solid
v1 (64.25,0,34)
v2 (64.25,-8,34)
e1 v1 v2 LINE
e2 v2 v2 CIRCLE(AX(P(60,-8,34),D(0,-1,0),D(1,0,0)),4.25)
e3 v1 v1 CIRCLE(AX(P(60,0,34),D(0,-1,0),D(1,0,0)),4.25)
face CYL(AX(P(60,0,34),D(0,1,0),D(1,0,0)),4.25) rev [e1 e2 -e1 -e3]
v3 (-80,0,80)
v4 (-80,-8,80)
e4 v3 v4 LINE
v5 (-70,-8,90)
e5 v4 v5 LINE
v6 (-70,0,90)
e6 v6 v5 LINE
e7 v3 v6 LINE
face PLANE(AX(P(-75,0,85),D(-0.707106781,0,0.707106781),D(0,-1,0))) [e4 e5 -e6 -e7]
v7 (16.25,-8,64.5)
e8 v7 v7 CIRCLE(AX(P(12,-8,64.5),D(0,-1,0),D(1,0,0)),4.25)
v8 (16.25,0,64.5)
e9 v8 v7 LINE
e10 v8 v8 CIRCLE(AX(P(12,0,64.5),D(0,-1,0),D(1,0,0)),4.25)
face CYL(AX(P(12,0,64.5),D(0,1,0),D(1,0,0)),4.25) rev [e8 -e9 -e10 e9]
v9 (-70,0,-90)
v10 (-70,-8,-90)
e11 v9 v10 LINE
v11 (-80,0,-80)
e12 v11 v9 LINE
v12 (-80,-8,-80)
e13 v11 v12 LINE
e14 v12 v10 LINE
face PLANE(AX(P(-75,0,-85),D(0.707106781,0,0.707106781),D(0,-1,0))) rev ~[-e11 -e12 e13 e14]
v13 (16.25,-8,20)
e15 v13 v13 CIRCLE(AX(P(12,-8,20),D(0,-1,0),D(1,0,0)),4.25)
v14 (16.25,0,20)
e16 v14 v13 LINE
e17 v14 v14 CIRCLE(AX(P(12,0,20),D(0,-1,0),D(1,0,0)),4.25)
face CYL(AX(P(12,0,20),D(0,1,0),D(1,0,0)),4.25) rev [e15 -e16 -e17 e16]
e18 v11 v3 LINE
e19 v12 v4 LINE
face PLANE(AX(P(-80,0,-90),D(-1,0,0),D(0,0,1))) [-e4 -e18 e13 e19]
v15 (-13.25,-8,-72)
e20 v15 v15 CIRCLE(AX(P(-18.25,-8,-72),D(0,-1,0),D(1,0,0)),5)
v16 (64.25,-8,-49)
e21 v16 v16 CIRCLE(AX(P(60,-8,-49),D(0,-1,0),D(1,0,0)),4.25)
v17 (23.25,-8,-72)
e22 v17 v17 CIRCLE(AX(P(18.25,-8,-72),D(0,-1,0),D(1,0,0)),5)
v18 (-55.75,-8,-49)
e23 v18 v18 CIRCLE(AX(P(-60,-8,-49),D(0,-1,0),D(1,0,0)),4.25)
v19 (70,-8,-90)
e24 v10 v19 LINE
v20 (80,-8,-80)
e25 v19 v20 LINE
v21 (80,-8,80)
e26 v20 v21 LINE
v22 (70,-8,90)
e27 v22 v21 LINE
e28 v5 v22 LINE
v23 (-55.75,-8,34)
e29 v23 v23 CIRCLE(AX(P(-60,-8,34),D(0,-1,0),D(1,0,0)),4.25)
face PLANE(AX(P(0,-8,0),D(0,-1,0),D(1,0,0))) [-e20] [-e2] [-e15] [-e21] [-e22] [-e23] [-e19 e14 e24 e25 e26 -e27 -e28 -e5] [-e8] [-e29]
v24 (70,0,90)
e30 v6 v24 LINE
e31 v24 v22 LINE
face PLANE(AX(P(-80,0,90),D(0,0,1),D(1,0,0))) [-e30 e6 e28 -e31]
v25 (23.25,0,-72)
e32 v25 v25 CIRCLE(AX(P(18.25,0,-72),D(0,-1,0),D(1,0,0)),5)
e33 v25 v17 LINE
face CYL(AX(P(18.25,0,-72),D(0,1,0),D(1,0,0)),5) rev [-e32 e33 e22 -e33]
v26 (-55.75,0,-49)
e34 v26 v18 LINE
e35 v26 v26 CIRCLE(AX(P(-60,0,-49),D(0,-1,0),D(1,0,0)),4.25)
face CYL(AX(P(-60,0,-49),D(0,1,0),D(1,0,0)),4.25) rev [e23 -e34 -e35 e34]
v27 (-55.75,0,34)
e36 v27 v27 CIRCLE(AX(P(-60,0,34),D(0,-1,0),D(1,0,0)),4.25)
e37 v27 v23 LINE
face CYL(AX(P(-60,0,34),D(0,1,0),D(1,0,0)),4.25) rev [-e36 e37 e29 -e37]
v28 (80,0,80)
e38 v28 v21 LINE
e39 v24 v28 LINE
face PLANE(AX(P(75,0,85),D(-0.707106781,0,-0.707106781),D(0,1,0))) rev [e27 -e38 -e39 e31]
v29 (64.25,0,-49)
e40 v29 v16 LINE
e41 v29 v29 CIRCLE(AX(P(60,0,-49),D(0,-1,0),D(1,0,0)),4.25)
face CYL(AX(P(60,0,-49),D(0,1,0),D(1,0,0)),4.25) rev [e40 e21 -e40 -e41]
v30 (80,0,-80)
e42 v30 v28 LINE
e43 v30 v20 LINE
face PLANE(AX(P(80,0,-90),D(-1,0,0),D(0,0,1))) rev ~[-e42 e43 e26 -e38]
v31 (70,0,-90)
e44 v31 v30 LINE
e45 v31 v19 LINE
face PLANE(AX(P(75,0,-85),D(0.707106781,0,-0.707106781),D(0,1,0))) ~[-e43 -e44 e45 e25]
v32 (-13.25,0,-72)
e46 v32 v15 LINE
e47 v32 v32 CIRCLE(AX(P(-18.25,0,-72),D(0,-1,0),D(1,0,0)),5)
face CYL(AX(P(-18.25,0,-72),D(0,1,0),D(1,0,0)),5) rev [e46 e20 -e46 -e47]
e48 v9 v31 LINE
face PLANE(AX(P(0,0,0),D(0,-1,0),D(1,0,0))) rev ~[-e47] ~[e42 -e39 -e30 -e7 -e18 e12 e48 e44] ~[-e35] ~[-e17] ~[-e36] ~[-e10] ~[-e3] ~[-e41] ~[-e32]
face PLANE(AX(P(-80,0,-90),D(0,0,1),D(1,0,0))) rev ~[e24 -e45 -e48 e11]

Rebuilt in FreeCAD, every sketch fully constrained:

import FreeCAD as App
import Part
import Sketcher

V = App.Vector


def edges_at(feature, points):
    """Names of the edges that pass closest to the given points."""
    edges = feature.Shape.Edges
    near = lambda p: min(range(len(edges)), key=lambda i: edges[i].distToShape(Part.Vertex(*p))[0])
    return sorted({f"Edge{near(p) + 1}" for p in points})


def add_polygon(sketch, points):
    """Adds a closed chain of lines whose ends are joined by coincident constraints."""
    first, n = sketch.GeometryCount, len(points)
    for a, b in zip(points, points[1:] + points[:1]):
        sketch.addGeometry(Part.LineSegment(App.Vector(*a, 0), App.Vector(*b, 0)), False)
    for i in range(n):
        sketch.addConstraint(Sketcher.Constraint("Coincident", first + i, 2, first + (i + 1) % n, 1))

doc = App.newDocument("Part")
body = doc.addObject("PartDesign::Body", "Body")

# Sketch on XZ plane
sketch1 = doc.addObject("Sketcher::SketchObject", "Sketch")
body.addObject(sketch1)
sketch1.AttachmentSupport = (doc.XZ_Plane, [""])
sketch1.MapMode = "FlatFace"
add_polygon(sketch1, [(-80, 90), (-80, -90), (80, -90), (80, 90)])  # lines 0-3
sketch1.addGeometry(Part.Circle(V(-60, -49, 0), V(0, 0, 1), 4.2), False)  # 4
sketch1.addGeometry(Part.Circle(V(-18.2, -72, 0), V(0, 0, 1), 5), False)  # 5
sketch1.addGeometry(Part.Circle(V(18.2, -72, 0), V(0, 0, 1), 5), False)  # 6
sketch1.addGeometry(Part.Circle(V(60, -49, 0), V(0, 0, 1), 4.2), False)  # 7
sketch1.addGeometry(Part.Circle(V(-60, 34, 0), V(0, 0, 1), 4.2), False)  # 8
sketch1.addGeometry(Part.Circle(V(12, 20, 0), V(0, 0, 1), 4.2), False)  # 9
sketch1.addGeometry(Part.Circle(V(12, 64.5, 0), V(0, 0, 1), 4.2), False)  # 10
sketch1.addGeometry(Part.Circle(V(60, 34, 0), V(0, 0, 1), 4.2), False)  # 11
sketch1.addConstraint([
    Sketcher.Constraint("Vertical", 0),
    Sketcher.Constraint("Horizontal", 1),
    Sketcher.Constraint("Vertical", 2),
    Sketcher.Constraint("Horizontal", 3),
    Sketcher.Constraint("Equal", 5, 6),
    Sketcher.Constraint("Equal", 4, 7),
    Sketcher.Constraint("Equal", 7, 8),
    Sketcher.Constraint("Equal", 8, 9),
    Sketcher.Constraint("Equal", 9, 10),
    Sketcher.Constraint("Equal", 10, 11),
    Sketcher.Constraint("Symmetric", 0, 2, 2, 2, -1, 1),
    Sketcher.Constraint("Symmetric", 5, 3, 6, 3, -2),
    Sketcher.Constraint("Symmetric", 4, 3, 7, 3, -2),
    Sketcher.Constraint("Symmetric", 8, 3, 11, 3, -2),
    Sketcher.Constraint("Vertical", 4, 3, 8, 3),
    Sketcher.Constraint("Vertical", 9, 3, 10, 3),
    Sketcher.Constraint("Diameter", 5, 10.0),
    Sketcher.Constraint("Diameter", 4, 8.5),
    Sketcher.Constraint("DistanceX", 1, 1, 1, 2, 160.0),
    Sketcher.Constraint("DistanceY", 0, 2, 0, 1, 180.0),
    Sketcher.Constraint("DistanceX", 4, 3, -1, 1, 60.0),
    Sketcher.Constraint("DistanceY", 4, 3, -1, 1, 49.0),
    Sketcher.Constraint("DistanceY", 5, 3, -1, 1, 72.0),
    Sketcher.Constraint("DistanceY", -1, 1, 8, 3, 34.0),
    Sketcher.Constraint("DistanceX", -1, 1, 9, 3, 12.0),
    Sketcher.Constraint("DistanceY", -1, 1, 9, 3, 20.0),
    Sketcher.Constraint("DistanceY", -1, 1, 10, 3, 64.5),
    Sketcher.Constraint("DistanceX", 5, 3, 6, 3, 36.5),
])
pad1 = doc.addObject("PartDesign::Pad", "Pad")
body.addObject(pad1)
pad1.Profile = sketch1
pad1.Length = 8
doc.recompute()

chamfer = doc.addObject("PartDesign::Chamfer", "Chamfer")
body.addObject(chamfer)
chamfer.Base = (pad1, edges_at(pad1, [
    (-80, -4, 90),
    (80, -4, 90),
    (80, -4, -90),
    (-80, -4, -90),
]))
chamfer.Size = 10

doc.recompute()
